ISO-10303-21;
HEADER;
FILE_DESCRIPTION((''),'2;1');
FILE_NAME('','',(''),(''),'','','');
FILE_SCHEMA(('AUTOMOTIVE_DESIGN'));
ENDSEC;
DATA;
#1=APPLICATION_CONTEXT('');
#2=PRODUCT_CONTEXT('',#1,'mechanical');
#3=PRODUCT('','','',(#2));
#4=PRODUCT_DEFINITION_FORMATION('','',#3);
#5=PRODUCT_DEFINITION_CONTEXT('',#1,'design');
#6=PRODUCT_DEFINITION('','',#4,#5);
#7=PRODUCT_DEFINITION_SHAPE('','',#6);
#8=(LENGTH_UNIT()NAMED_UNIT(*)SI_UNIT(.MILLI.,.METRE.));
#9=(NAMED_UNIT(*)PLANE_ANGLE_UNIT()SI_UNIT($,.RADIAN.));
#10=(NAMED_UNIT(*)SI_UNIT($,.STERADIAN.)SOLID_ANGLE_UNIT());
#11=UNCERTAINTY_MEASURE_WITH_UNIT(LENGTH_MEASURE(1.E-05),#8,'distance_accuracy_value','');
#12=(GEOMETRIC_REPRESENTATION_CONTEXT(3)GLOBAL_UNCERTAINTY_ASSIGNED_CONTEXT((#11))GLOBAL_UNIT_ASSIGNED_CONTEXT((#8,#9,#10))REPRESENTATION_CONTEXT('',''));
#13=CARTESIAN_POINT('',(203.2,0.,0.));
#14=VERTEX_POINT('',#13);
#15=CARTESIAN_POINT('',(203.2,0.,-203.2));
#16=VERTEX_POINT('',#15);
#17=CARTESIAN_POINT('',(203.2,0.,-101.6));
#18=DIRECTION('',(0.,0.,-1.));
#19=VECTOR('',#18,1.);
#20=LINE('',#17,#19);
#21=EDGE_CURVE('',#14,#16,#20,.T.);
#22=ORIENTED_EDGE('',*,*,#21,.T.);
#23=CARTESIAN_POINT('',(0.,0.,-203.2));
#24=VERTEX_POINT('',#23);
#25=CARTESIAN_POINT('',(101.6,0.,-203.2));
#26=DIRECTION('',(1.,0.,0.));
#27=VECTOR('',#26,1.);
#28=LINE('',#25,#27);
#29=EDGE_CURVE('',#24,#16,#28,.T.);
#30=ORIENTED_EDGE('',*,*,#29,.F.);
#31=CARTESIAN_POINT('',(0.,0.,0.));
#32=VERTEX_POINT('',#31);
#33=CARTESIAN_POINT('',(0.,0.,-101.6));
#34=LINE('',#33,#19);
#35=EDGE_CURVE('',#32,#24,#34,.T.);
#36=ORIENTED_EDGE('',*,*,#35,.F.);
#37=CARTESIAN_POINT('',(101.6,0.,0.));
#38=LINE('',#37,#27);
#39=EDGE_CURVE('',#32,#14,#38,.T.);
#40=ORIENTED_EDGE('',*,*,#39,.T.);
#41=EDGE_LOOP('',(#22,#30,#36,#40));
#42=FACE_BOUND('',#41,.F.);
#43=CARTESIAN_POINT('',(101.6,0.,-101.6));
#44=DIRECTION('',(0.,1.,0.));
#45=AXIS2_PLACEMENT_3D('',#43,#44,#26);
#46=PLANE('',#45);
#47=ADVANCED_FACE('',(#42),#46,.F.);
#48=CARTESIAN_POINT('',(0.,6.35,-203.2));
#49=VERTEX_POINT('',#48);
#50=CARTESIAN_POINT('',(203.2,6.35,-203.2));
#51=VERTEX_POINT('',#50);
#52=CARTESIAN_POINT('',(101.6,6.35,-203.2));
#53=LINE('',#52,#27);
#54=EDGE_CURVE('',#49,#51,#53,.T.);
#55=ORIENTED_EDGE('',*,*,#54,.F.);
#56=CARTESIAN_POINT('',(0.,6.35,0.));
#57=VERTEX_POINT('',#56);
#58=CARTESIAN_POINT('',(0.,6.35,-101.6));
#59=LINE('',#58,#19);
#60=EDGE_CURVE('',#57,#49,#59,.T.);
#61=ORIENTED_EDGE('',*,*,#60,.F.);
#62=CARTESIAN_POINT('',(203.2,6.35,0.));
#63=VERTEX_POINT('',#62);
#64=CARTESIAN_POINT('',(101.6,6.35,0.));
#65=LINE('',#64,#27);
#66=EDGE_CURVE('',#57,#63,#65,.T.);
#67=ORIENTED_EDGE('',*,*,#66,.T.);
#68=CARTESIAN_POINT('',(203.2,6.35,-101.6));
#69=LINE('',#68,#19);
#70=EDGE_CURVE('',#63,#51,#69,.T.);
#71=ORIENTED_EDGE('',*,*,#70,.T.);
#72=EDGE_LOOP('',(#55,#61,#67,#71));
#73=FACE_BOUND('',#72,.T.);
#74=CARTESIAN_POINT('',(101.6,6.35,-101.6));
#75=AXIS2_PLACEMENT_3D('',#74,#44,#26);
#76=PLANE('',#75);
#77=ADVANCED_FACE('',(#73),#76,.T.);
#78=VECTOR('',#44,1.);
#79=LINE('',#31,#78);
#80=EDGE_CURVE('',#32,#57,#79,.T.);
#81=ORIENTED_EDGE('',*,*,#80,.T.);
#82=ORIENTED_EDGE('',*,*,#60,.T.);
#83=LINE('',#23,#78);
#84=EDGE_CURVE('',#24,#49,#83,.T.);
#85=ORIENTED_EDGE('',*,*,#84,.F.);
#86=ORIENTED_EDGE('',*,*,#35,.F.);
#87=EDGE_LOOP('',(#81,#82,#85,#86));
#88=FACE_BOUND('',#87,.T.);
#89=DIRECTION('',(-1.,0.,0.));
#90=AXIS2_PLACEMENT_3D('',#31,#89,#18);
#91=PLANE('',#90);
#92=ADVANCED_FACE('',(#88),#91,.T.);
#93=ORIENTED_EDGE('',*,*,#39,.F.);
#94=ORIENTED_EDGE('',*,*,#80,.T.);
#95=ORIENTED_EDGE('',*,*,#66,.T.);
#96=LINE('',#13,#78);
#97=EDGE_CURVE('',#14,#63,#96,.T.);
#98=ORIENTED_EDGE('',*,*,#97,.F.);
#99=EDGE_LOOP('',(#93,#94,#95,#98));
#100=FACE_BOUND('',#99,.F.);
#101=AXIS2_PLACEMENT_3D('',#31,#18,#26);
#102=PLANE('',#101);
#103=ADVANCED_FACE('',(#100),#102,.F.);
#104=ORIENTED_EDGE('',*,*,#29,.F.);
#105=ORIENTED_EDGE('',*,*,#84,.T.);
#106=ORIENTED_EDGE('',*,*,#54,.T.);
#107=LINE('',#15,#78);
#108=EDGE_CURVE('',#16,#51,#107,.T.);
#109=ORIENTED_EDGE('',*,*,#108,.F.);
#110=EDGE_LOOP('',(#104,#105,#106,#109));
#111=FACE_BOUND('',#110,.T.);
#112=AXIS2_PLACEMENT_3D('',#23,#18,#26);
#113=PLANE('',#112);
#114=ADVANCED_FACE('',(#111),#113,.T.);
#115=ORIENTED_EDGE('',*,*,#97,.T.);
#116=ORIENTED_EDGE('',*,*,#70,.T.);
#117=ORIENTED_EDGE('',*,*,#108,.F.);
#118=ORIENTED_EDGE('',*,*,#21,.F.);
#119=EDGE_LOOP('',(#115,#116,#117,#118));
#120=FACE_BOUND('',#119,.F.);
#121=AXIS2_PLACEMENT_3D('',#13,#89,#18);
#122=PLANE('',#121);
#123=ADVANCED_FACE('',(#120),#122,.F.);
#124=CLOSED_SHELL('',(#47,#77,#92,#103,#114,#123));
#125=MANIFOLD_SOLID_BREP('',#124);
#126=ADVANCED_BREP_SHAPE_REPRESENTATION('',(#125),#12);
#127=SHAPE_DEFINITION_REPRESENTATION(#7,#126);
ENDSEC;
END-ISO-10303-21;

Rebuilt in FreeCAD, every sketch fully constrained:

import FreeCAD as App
import Part
import Sketcher

V = App.Vector
Q = App.Units.Quantity


def add_polygon(sketch, points):
    """Adds a closed chain of lines whose ends are joined by coincident constraints."""
    first, n = sketch.GeometryCount, len(points)
    for a, b in zip(points, points[1:] + points[:1]):
        sketch.addGeometry(Part.LineSegment(App.Vector(*a, 0), App.Vector(*b, 0)), False)
    for i in range(n):
        sketch.addConstraint(Sketcher.Constraint("Coincident", first + i, 2, first + (i + 1) % n, 1))

doc = App.newDocument("Part")
params = doc.addObject("Spreadsheet::Sheet", "Params")
for row, (alias, value) in enumerate([
    ("sketch1_width", "8 in"),
    ("pad1_length", "0.25 in"),
], start=1):
    params.set(f"A{row}", alias)
    params.set(f"B{row}", "=" + value)
    params.setAlias(f"B{row}", alias)

body = doc.addObject("PartDesign::Body", "Body")

# Sketch on XZ plane
sketch1 = doc.addObject("Sketcher::SketchObject", "Sketch")
body.addObject(sketch1)
sketch1.AttachmentSupport = (doc.XZ_Plane, [""])
sketch1.MapMode = "FlatFace"
add_polygon(sketch1, [(0, -203.2), (0, 0), (203.2, 0), (203.2, -203.2)])  # lines 0-3
sketch1.addConstraint(Sketcher.Constraint("Vertical", 0))
sketch1.addConstraint(Sketcher.Constraint("Horizontal", 1))
sketch1.addConstraint(Sketcher.Constraint("Vertical", 2))
sketch1.addConstraint(Sketcher.Constraint("Horizontal", 3))
sketch1.addConstraint(Sketcher.Constraint("Coincident", 0, 2, -1, 1))
sketch1.addConstraint(Sketcher.Constraint("Equal", 3, 0))
sketch1.addConstraint(Sketcher.Constraint("DistanceX", 1, 1, 1, 2, Q("8 in")))
sketch1.setExpression("Constraints[10]", "Params.sketch1_width")
pad1 = doc.addObject("PartDesign::Pad", "Pad")
body.addObject(pad1)
pad1.Profile = sketch1
pad1.setExpression("Length", "Params.pad1_length")
pad1.Reversed = True

doc.recompute()
